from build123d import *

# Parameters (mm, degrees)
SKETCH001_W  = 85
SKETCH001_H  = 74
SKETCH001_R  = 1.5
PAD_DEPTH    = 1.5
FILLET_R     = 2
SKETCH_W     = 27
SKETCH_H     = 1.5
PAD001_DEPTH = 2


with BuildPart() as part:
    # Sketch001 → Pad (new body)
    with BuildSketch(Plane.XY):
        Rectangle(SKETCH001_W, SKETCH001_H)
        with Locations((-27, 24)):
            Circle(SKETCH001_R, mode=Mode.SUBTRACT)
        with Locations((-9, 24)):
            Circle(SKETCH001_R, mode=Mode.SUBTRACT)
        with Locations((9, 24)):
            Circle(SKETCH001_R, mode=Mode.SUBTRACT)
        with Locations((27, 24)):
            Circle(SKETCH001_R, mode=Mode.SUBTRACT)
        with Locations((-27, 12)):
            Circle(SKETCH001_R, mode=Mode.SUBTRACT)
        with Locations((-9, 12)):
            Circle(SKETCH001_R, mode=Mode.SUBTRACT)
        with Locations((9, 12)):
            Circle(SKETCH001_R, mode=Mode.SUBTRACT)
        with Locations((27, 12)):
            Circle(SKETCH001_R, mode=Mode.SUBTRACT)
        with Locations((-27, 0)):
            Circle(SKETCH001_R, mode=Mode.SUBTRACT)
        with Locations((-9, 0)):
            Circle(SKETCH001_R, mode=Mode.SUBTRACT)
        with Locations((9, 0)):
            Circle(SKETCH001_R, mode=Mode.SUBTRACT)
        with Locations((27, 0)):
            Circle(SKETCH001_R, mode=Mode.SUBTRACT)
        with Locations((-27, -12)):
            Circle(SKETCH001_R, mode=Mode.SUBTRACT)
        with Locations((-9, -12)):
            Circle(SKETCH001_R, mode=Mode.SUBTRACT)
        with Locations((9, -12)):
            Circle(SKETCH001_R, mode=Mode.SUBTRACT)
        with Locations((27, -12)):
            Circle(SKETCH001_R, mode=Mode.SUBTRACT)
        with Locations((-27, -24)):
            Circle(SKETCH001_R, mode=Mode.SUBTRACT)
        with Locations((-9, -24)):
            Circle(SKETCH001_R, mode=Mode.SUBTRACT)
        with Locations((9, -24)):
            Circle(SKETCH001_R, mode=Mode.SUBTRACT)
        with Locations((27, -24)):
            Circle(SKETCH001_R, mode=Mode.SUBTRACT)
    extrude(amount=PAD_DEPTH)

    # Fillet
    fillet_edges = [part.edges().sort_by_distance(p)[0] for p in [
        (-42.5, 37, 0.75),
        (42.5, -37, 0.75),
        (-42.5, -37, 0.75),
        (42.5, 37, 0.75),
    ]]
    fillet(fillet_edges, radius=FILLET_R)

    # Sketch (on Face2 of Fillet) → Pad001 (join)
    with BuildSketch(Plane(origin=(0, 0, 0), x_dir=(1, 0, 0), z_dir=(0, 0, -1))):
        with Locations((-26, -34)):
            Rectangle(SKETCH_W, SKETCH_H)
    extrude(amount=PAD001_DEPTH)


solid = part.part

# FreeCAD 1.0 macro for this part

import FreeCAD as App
import Part
import Sketcher

V = App.Vector
Q = App.Units.Quantity


def edges_at(feature, points):
    """Names of the edges that pass closest to the given points."""
    edges = feature.Shape.Edges
    near = lambda p: min(range(len(edges)), key=lambda i: edges[i].distToShape(Part.Vertex(*p))[0])
    return sorted({f"Edge{near(p) + 1}" for p in points})


def add_polygon(sketch, points):
    """Adds a closed chain of lines whose ends are joined by coincident constraints."""
    first, n = sketch.GeometryCount, len(points)
    for a, b in zip(points, points[1:] + points[:1]):
        sketch.addGeometry(Part.LineSegment(App.Vector(*a, 0), App.Vector(*b, 0)), False)
    for i in range(n):
        sketch.addConstraint(Sketcher.Constraint("Coincident", first + i, 2, first + (i + 1) % n, 1))

doc = App.newDocument("Part")
body = doc.addObject("PartDesign::Body", "Body")

# Sketch on XY plane
sketch1 = doc.addObject("Sketcher::SketchObject", "Sketch")
body.addObject(sketch1)
sketch1.AttachmentSupport = (doc.XY_Plane, [""])
sketch1.MapMode = "FlatFace"
add_polygon(sketch1, [(-42.5, 37), (-42.5, -37), (42.5, -37), (42.5, 37)])  # lines 0-3
sketch1.addGeometry(Part.Circle(V(-27, -24, 0), V(0, 0, 1), 1.5), False)  # 4
sketch1.addGeometry(Part.Circle(V(-9, -24, 0), V(0, 0, 1), 1.5), False)  # 5
sketch1.addGeometry(Part.Circle(V(-27, -12, 0), V(0, 0, 1), 1.5), False)  # 6
sketch1.addGeometry(Part.Circle(V(-9, -12, 0), V(0, 0, 1), 1.5), False)  # 7
sketch1.addGeometry(Part.Circle(V(9, -24, 0), V(0, 0, 1), 1.5), False)  # 8
sketch1.addGeometry(Part.Circle(V(27, -24, 0), V(0, 0, 1), 1.5), False)  # 9
sketch1.addGeometry(Part.Circle(V(9, -12, 0), V(0, 0, 1), 1.5), False)  # 10
sketch1.addGeometry(Part.Circle(V(27, -12, 0), V(0, 0, 1), 1.5), False)  # 11
sketch1.addGeometry(Part.Circle(V(-27, 0, 0), V(0, 0, 1), 1.5), False)  # 12
sketch1.addGeometry(Part.Circle(V(-27, 12, 0), V(0, 0, 1), 1.5), False)  # 13
sketch1.addGeometry(Part.Circle(V(-9, 0, 0), V(0, 0, 1), 1.5), False)  # 14
sketch1.addGeometry(Part.Circle(V(-9, 12, 0), V(0, 0, 1), 1.5), False)  # 15
sketch1.addGeometry(Part.Circle(V(-27, 24, 0), V(0, 0, 1), 1.5), False)  # 16
sketch1.addGeometry(Part.Circle(V(-9, 24, 0), V(0, 0, 1), 1.5), False)  # 17
sketch1.addGeometry(Part.Circle(V(9, 0, 0), V(0, 0, 1), 1.5), False)  # 18
sketch1.addGeometry(Part.Circle(V(9, 12, 0), V(0, 0, 1), 1.5), False)  # 19
sketch1.addGeometry(Part.Circle(V(27, 0, 0), V(0, 0, 1), 1.5), False)  # 20
sketch1.addGeometry(Part.Circle(V(27, 12, 0), V(0, 0, 1), 1.5), False)  # 21
sketch1.addGeometry(Part.Circle(V(9, 24, 0), V(0, 0, 1), 1.5), False)  # 22
sketch1.addGeometry(Part.Circle(V(27, 24, 0), V(0, 0, 1), 1.5), False)  # 23
sketch1.addConstraint(Sketcher.Constraint("Vertical", 0))
sketch1.addConstraint(Sketcher.Constraint("Horizontal", 1))
sketch1.addConstraint(Sketcher.Constraint("Vertical", 2))
sketch1.addConstraint(Sketcher.Constraint("Horizontal", 3))
sketch1.addConstraint(Sketcher.Constraint("Equal", 4, 5))
sketch1.addConstraint(Sketcher.Constraint("Equal", 5, 6))
sketch1.addConstraint(Sketcher.Constraint("Equal", 6, 7))
sketch1.addConstraint(Sketcher.Constraint("Equal", 7, 8))
sketch1.addConstraint(Sketcher.Constraint("Equal", 8, 9))
sketch1.addConstraint(Sketcher.Constraint("Equal", 9, 10))
sketch1.addConstraint(Sketcher.Constraint("Equal", 10, 11))
sketch1.addConstraint(Sketcher.Constraint("Equal", 11, 12))
sketch1.addConstraint(Sketcher.Constraint("Equal", 12, 13))
sketch1.addConstraint(Sketcher.Constraint("Equal", 13, 14))
sketch1.addConstraint(Sketcher.Constraint("Equal", 14, 15))
sketch1.addConstraint(Sketcher.Constraint("Equal", 15, 16))
sketch1.addConstraint(Sketcher.Constraint("Equal", 16, 17))
sketch1.addConstraint(Sketcher.Constraint("Equal", 17, 18))
sketch1.addConstraint(Sketcher.Constraint("Equal", 18, 19))
sketch1.addConstraint(Sketcher.Constraint("Equal", 19, 20))
sketch1.addConstraint(Sketcher.Constraint("Equal", 20, 21))
sketch1.addConstraint(Sketcher.Constraint("Equal", 21, 22))
sketch1.addConstraint(Sketcher.Constraint("Equal", 22, 23))
sketch1.addConstraint(Sketcher.Constraint("Symmetric", 11, 3, 13, 3, -1, 1))
sketch1.addConstraint(Sketcher.Constraint("Symmetric", 10, 3, 15, 3, -1, 1))
sketch1.addConstraint(Sketcher.Constraint("Symmetric", 9, 3, 16, 3, -1, 1))
sketch1.addConstraint(Sketcher.Constraint("Symmetric", 8, 3, 17, 3, -1, 1))
sketch1.addConstraint(Sketcher.Constraint("Symmetric", 14, 3, 18, 3, -1, 1))
sketch1.addConstraint(Sketcher.Constraint("Symmetric", 7, 3, 19, 3, -1, 1))
sketch1.addConstraint(Sketcher.Constraint("Symmetric", 12, 3, 20, 3, -1, 1))
sketch1.addConstraint(Sketcher.Constraint("Symmetric", 6, 3, 21, 3, -1, 1))
sketch1.addConstraint(Sketcher.Constraint("Symmetric", 5, 3, 22, 3, -1, 1))
sketch1.addConstraint(Sketcher.Constraint("Symmetric", 4, 3, 23, 3, -1, 1))
sketch1.addConstraint(Sketcher.Constraint("Symmetric", 0, 2, 2, 2, -1, 1))
sketch1.addConstraint(Sketcher.Constraint("Symmetric", 5, 3, 8, 3, -2))
sketch1.addConstraint(Sketcher.Constraint("Symmetric", 4, 3, 9, 3, -2))
sketch1.addConstraint(Sketcher.Constraint("Symmetric", 7, 3, 10, 3, -2))
sketch1.addConstraint(Sketcher.Constraint("Symmetric", 6, 3, 11, 3, -2))
sketch1.addConstraint(Sketcher.Constraint("PointOnObject", 12, 3, -1))
sketch1.addConstraint(Sketcher.Constraint("PointOnObject", 14, 3, -1))
sketch1.addConstraint(Sketcher.Constraint("Horizontal", 4, 3, 5, 3))
sketch1.addConstraint(Sketcher.Constraint("Horizontal", 6, 3, 7, 3))
sketch1.addConstraint(Sketcher.Constraint("Vertical", 4, 3, 6, 3))
sketch1.addConstraint(Sketcher.Constraint("Vertical", 5, 3, 7, 3))
sketch1.addConstraint(Sketcher.Constraint("Vertical", 6, 3, 12, 3))
sketch1.addConstraint(Sketcher.Constraint("Vertical", 7, 3, 14, 3))
sketch1.addConstraint(Sketcher.Constraint("Diameter", 4, Q("3 mm")))
sketch1.addConstraint(Sketcher.Constraint("DistanceX", 1, 1, 1, 2, Q("85 mm")))
sketch1.addConstraint(Sketcher.Constraint("DistanceY", 0, 2, 0, 1, Q("74 mm")))
sketch1.addConstraint(Sketcher.Constraint("DistanceX", 4, 3, -1, 1, Q("27 mm")))
sketch1.addConstraint(Sketcher.Constraint("DistanceY", 4, 3, -1, 1, Q("24 mm")))
sketch1.addConstraint(Sketcher.Constraint("DistanceX", 5, 3, -1, 1, Q("9 mm")))
sketch1.addConstraint(Sketcher.Constraint("DistanceY", 6, 3, -1, 1, Q("12 mm")))
pad1 = doc.addObject("PartDesign::Pad", "Pad")
body.addObject(pad1)
pad1.Profile = sketch1
pad1.Length = 1.5
doc.recompute()

fillet = doc.addObject("PartDesign::Fillet", "Fillet")
body.addObject(fillet)
fillet.Base = (pad1, edges_at(pad1, [
    (-42.5, 37, 0.75),
    (42.5, -37, 0.75),
    (-42.5, -37, 0.75),
    (42.5, 37, 0.75),
]))
fillet.Radius = 2

# Sketch on XY plane
sketch2 = doc.addObject("Sketcher::SketchObject", "Sketch001")
body.addObject(sketch2)
sketch2.AttachmentSupport = (doc.XY_Plane, [""])
sketch2.MapMode = "FlatFace"
add_polygon(sketch2, [(-39.5, 33.2), (-39.5, 34.8), (-12.5, 34.8), (-12.5, 33.2)])  # lines 0-3
sketch2.addConstraint(Sketcher.Constraint("Vertical", 0))
sketch2.addConstraint(Sketcher.Constraint("Horizontal", 1))
sketch2.addConstraint(Sketcher.Constraint("Vertical", 2))
sketch2.addConstraint(Sketcher.Constraint("Horizontal", 3))
sketch2.addConstraint(Sketcher.Constraint("DistanceX", 1, 1, 1, 2, Q("27 mm")))
sketch2.addConstraint(Sketcher.Constraint("DistanceY", 0, 1, 0, 2, Q("1.5 mm")))
sketch2.addConstraint(Sketcher.Constraint("DistanceX", 0, 2, -1, 1, Q("39.5 mm")))
sketch2.addConstraint(Sketcher.Constraint("DistanceY", -1, 1, 0, 2, Q("34.75 mm")))
pad2 = doc.addObject("PartDesign::Pad", "Pad001")
body.addObject(pad2)
pad2.Profile = sketch2
pad2.Length = 2
pad2.Reversed = True

doc.recompute()
